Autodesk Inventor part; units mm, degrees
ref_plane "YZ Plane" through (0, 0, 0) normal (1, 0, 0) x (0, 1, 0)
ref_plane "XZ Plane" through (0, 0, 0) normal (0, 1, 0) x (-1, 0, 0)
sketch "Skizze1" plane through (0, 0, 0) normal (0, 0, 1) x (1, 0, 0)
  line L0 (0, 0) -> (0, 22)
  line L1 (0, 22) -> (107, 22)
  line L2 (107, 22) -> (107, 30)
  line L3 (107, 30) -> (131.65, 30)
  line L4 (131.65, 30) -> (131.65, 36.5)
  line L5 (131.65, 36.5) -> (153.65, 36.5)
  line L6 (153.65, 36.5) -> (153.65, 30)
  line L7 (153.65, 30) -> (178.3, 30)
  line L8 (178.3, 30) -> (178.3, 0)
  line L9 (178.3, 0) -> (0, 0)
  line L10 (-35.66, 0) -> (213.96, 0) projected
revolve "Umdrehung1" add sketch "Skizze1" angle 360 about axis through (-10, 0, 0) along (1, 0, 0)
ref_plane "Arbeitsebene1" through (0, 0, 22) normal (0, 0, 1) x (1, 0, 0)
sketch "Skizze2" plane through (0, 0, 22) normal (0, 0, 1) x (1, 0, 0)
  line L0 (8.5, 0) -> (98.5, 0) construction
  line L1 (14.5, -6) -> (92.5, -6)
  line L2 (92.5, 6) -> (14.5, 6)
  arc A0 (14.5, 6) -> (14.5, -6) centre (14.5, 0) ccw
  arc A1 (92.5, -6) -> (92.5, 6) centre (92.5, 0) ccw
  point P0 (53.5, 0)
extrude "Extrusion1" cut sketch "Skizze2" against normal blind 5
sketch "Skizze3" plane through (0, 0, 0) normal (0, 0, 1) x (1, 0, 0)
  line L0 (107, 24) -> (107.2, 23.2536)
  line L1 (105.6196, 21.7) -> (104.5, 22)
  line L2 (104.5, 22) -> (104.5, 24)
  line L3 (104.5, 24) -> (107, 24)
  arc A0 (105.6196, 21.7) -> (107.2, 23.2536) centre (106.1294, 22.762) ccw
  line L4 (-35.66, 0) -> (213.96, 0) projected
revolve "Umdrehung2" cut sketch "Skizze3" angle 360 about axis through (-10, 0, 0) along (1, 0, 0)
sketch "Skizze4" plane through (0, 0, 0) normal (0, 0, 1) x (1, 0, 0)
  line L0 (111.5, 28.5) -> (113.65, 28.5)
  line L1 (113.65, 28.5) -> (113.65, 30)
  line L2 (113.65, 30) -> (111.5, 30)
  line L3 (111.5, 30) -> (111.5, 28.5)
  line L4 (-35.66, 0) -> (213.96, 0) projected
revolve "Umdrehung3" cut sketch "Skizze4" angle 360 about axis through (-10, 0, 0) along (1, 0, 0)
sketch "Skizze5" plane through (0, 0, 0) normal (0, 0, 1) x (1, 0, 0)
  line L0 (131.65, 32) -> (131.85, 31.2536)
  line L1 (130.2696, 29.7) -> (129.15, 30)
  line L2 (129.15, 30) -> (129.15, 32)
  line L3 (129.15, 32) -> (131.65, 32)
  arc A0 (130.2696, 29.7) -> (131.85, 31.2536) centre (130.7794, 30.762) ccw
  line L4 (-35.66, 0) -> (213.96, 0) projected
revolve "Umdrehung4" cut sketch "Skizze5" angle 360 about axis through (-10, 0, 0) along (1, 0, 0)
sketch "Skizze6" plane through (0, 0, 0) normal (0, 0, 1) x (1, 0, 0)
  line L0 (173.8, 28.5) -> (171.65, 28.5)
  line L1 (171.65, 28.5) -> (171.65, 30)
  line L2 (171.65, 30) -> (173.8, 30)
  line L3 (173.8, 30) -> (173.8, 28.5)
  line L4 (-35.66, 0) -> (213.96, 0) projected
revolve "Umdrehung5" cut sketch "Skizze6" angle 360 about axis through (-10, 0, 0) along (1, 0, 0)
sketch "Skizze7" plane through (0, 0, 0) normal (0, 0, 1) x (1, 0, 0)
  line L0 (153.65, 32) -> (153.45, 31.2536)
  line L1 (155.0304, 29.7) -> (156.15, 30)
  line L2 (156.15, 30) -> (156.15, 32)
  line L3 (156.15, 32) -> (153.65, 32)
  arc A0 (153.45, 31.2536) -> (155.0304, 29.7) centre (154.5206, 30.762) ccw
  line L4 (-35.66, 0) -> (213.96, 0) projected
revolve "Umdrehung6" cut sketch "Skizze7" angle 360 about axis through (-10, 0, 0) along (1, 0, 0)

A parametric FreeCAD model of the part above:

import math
import FreeCAD as App
import Part
import Sketcher

V = App.Vector
Q = App.Units.Quantity

doc = App.newDocument("Part")
body = doc.addObject("PartDesign::Body", "Body")

# Sketch on XY plane
sketch1 = doc.addObject("Sketcher::SketchObject", "Sketch")
body.addObject(sketch1)
sketch1.AttachmentSupport = (doc.XY_Plane, [""])
sketch1.MapMode = "FlatFace"
sketch1.addGeometry([
    Part.LineSegment(V(0, 22, 0), V(0, 0, 0)),  # 0
    Part.LineSegment(V(0, 0, 0), V(178, 0, 0)),  # 1
    Part.LineSegment(V(178, 0, 0), V(178, 30, 0)),  # 2
    Part.LineSegment(V(178, 30, 0), V(154, 30, 0)),  # 3
    Part.LineSegment(V(154, 30, 0), V(154, 36, 0)),  # 4
    Part.LineSegment(V(154, 36, 0), V(132, 36, 0)),  # 5
    Part.LineSegment(V(132, 36, 0), V(132, 30, 0)),  # 6
    Part.LineSegment(V(132, 30, 0), V(107, 30, 0)),  # 7
    Part.LineSegment(V(107, 30, 0), V(107, 22, 0)),  # 8
    Part.LineSegment(V(107, 22, 0), V(0, 22, 0)),  # 9
], False)
sketch1.addConstraint([
    Sketcher.Constraint("Coincident", 0, 2, 1, 1),
    Sketcher.Constraint("Coincident", 1, 2, 2, 1),
    Sketcher.Constraint("Coincident", 2, 2, 3, 1),
    Sketcher.Constraint("Coincident", 3, 2, 4, 1),
    Sketcher.Constraint("Coincident", 4, 2, 5, 1),
    Sketcher.Constraint("Coincident", 5, 2, 6, 1),
    Sketcher.Constraint("Coincident", 6, 2, 7, 1),
    Sketcher.Constraint("Coincident", 7, 2, 8, 1),
    Sketcher.Constraint("Coincident", 8, 2, 9, 1),
    Sketcher.Constraint("Coincident", 9, 2, 0, 1),
    Sketcher.Constraint("Vertical", 0),
    Sketcher.Constraint("Horizontal", 1),
    Sketcher.Constraint("Vertical", 2),
    Sketcher.Constraint("Horizontal", 3),
    Sketcher.Constraint("Vertical", 4),
    Sketcher.Constraint("Horizontal", 5),
    Sketcher.Constraint("Vertical", 6),
    Sketcher.Constraint("Horizontal", 7),
    Sketcher.Constraint("Vertical", 8),
    Sketcher.Constraint("Horizontal", 9),
    Sketcher.Constraint("Coincident", 0, 2, -1, 1),
    Sketcher.Constraint("Horizontal", 3, 2, 6, 2),
    Sketcher.Constraint("Equal", 3, 7),
    Sketcher.Constraint("Equal", 5, 0),
    Sketcher.Constraint("DistanceX", 5, 2, 5, 1, Q("22 mm")),
    Sketcher.Constraint("DistanceX", 9, 2, 9, 1, Q("107 mm")),
    Sketcher.Constraint("DistanceY", 2, 1, 2, 2, Q("30 mm")),
    Sketcher.Constraint("DistanceX", 1, 1, 1, 2, Q("178.3 mm")),
    Sketcher.Constraint("DistanceY", 4, 1, 4, 2, Q("6.5 mm")),
])
revolution = doc.addObject("PartDesign::Revolution", "Revolution")
body.addObject(revolution)
revolution.Profile = sketch1
revolution.ReferenceAxis = (sketch1, ["H_Axis"])
revolution.Angle = 360

# Sketch on XY plane
sketch2 = doc.addObject("Sketcher::SketchObject", "Sketch001")
body.addObject(sketch2)
sketch2.AttachmentSupport = (doc.XY_Plane, [""])
sketch2.MapMode = "FlatFace"
sketch2.AttachmentOffset = App.Placement(V(0, 0, 22), App.Rotation())
sketch2.addGeometry([
    Part.ArcOfCircle(Part.Circle(V(14, 0, 0), V(0, 0, 1), 6), math.radians(90), math.radians(270)),
    Part.LineSegment(V(14, -6, 0), V(92, -6, 0)),
    Part.ArcOfCircle(Part.Circle(V(92, 0, 0), V(0, 0, 1), 6), math.radians(-90), math.radians(90)),
    Part.LineSegment(V(92, 6, 0), V(14, 6, 0)),
], False)
sketch2.addConstraint([
    Sketcher.Constraint("Tangent", 0, 2, 1, 1),
    Sketcher.Constraint("Tangent", 1, 2, 2, 1),
    Sketcher.Constraint("Tangent", 2, 2, 3, 1),
    Sketcher.Constraint("Tangent", 3, 2, 0, 1),
    Sketcher.Constraint("Horizontal", 1),
    Sketcher.Constraint("Horizontal", 3),
    Sketcher.Constraint("PointOnObject", 0, 3, -1),
    Sketcher.Constraint("Radius", 0, Q("6 mm")),
    Sketcher.Constraint("DistanceX", 1, 1, 1, 2, Q("78 mm")),
    Sketcher.Constraint("DistanceX", -1, 1, 0, 3, Q("14.5 mm")),
])
pocket1 = doc.addObject("PartDesign::Pocket", "Pocket")
body.addObject(pocket1)
pocket1.Profile = sketch2
pocket1.Length = 5

# Sketch on XY plane
sketch3 = doc.addObject("Sketcher::SketchObject", "Sketch002")
body.addObject(sketch3)
sketch3.AttachmentSupport = (doc.XY_Plane, [""])
sketch3.MapMode = "FlatFace"
sketch3.addGeometry([
    Part.LineSegment(V(107.2, 23.3, 0), V(107, 24, 0)),  # 0
    Part.LineSegment(V(107, 24, 0), V(104.5, 24, 0)),  # 1
    Part.LineSegment(V(104.5, 24, 0), V(104.5, 22, 0)),  # 2
    Part.LineSegment(V(104.5, 22, 0), V(105.6, 21.7, 0)),  # 3
    Part.ArcOfCircle(Part.Circle(V(106.1, 22.8, 0), V(0, 0, 1), 1.2), math.radians(-116), math.radians(25)),  # 4
], False)
sketch3.addConstraint([
    Sketcher.Constraint("Coincident", 0, 2, 1, 1),
    Sketcher.Constraint("Coincident", 1, 2, 2, 1),
    Sketcher.Constraint("Coincident", 2, 2, 3, 1),
    Sketcher.Constraint("Coincident", 3, 2, 4, 1),
    Sketcher.Constraint("Coincident", 4, 2, 0, 1),
    Sketcher.Constraint("Horizontal", 1),
    Sketcher.Constraint("Vertical", 2),
    Sketcher.Constraint("DistanceY", 2, 2, 2, 1, Q("2 mm")),
    Sketcher.Constraint("Angle", 0, Q("105.0002 deg")),
    Sketcher.Constraint("Angle", 3, Q("-15.0002 deg")),
    Sketcher.Constraint("DistanceX", 1, 2, 1, 1, Q("2.5 mm")),
    Sketcher.Constraint("DistanceX", -1, 1, 0, 2, Q("107 mm")),
    Sketcher.Constraint("DistanceY", -1, 1, 0, 2, Q("24 mm")),
    Sketcher.Constraint("Radius", 4, Q("1.178 mm")),
    Sketcher.Constraint("DistanceY", -1, 1, 3, 2, Q("21.7 mm")),
    Sketcher.Constraint("DistanceX", -1, 1, 4, 2, Q("107.2 mm")),
])
groove = doc.addObject("PartDesign::Groove", "Groove")
body.addObject(groove)
groove.Profile = sketch3
groove.ReferenceAxis = (sketch3, ["H_Axis"])
groove.Angle = 360

# Sketch on XY plane
sketch4 = doc.addObject("Sketcher::SketchObject", "Sketch003")
body.addObject(sketch4)
sketch4.AttachmentSupport = (doc.XY_Plane, [""])
sketch4.MapMode = "FlatFace"
sketch4.addGeometry([
    Part.LineSegment(V(111.5, 30, 0), V(111.5, 28.5, 0)),
    Part.LineSegment(V(111.5, 28.5, 0), V(113.7, 28.5, 0)),
    Part.LineSegment(V(113.7, 28.5, 0), V(113.7, 30, 0)),
    Part.LineSegment(V(113.7, 30, 0), V(111.5, 30, 0)),
], False)
sketch4.addConstraint([
    Sketcher.Constraint("Coincident", 0, 2, 1, 1),
    Sketcher.Constraint("Coincident", 1, 2, 2, 1),
    Sketcher.Constraint("Coincident", 2, 2, 3, 1),
    Sketcher.Constraint("Coincident", 3, 2, 0, 1),
    Sketcher.Constraint("Vertical", 0),
    Sketcher.Constraint("Horizontal", 1),
    Sketcher.Constraint("Vertical", 2),
    Sketcher.Constraint("Horizontal", 3),
    Sketcher.Constraint("DistanceY", 0, 2, 0, 1, Q("1.5 mm")),
    Sketcher.Constraint("DistanceY", -1, 1, 2, 2, Q("30 mm")),
    Sketcher.Constraint("DistanceX", 1, 1, 1, 2, Q("2.15 mm")),
    Sketcher.Constraint("DistanceX", -1, 1, 0, 2, Q("111.5 mm")),
])
groove2 = doc.addObject("PartDesign::Groove", "Groove001")
body.addObject(groove2)
groove2.Profile = sketch4
groove2.ReferenceAxis = (sketch4, ["H_Axis"])
groove2.Angle = 360

# Sketch on XY plane
sketch5 = doc.addObject("Sketcher::SketchObject", "Sketch004")
body.addObject(sketch5)
sketch5.AttachmentSupport = (doc.XY_Plane, [""])
sketch5.MapMode = "FlatFace"
sketch5.addGeometry([
    Part.LineSegment(V(131.8, 31.3, 0), V(131.7, 32, 0)),  # 0
    Part.LineSegment(V(131.7, 32, 0), V(129.2, 32, 0)),  # 1
    Part.LineSegment(V(129.2, 32, 0), V(129.2, 30, 0)),  # 2
    Part.LineSegment(V(129.2, 30, 0), V(130.3, 29.7, 0)),  # 3
    Part.ArcOfCircle(Part.Circle(V(130.8, 30.8, 0), V(0, 0, 1), 1.2), math.radians(-116), math.radians(25)),  # 4
], False)
sketch5.addConstraint([
    Sketcher.Constraint("Coincident", 0, 2, 1, 1),
    Sketcher.Constraint("Coincident", 1, 2, 2, 1),
    Sketcher.Constraint("Coincident", 2, 2, 3, 1),
    Sketcher.Constraint("Coincident", 3, 2, 4, 1),
    Sketcher.Constraint("Coincident", 4, 2, 0, 1),
    Sketcher.Constraint("Horizontal", 1),
    Sketcher.Constraint("Vertical", 2),
    Sketcher.Constraint("DistanceY", 2, 2, 2, 1, Q("2 mm")),
    Sketcher.Constraint("Angle", 0, Q("105.0002 deg")),
    Sketcher.Constraint("Angle", 3, Q("-15.0002 deg")),
    Sketcher.Constraint("DistanceX", 1, 2, 1, 1, Q("2.5 mm")),
    Sketcher.Constraint("DistanceY", -1, 1, 0, 2, Q("32 mm")),
    Sketcher.Constraint("Radius", 4, Q("1.178 mm")),
    Sketcher.Constraint("DistanceY", -1, 1, 3, 2, Q("29.7 mm")),
    Sketcher.Constraint("DistanceX", 0, 2, 4, 2, Q("0.2 mm")),
    Sketcher.Constraint("DistanceX", -1, 1, 0, 2, Q("131.65 mm")),
])
groove3 = doc.addObject("PartDesign::Groove", "Groove002")
body.addObject(groove3)
groove3.Profile = sketch5
groove3.ReferenceAxis = (sketch5, ["H_Axis"])
groove3.Angle = 360

# Sketch on XY plane
sketch6 = doc.addObject("Sketcher::SketchObject", "Sketch005")
body.addObject(sketch6)
sketch6.AttachmentSupport = (doc.XY_Plane, [""])
sketch6.MapMode = "FlatFace"
sketch6.addGeometry([
    Part.LineSegment(V(171.7, 28.5, 0), V(173.8, 28.5, 0)),
    Part.LineSegment(V(173.8, 28.5, 0), V(173.8, 30, 0)),
    Part.LineSegment(V(173.8, 30, 0), V(171.7, 30, 0)),
    Part.LineSegment(V(171.7, 30, 0), V(171.7, 28.5, 0)),
], False)
sketch6.addConstraint([
    Sketcher.Constraint("Coincident", 0, 2, 1, 1),
    Sketcher.Constraint("Coincident", 1, 2, 2, 1),
    Sketcher.Constraint("Coincident", 2, 2, 3, 1),
    Sketcher.Constraint("Coincident", 3, 2, 0, 1),
    Sketcher.Constraint("Horizontal", 0),
    Sketcher.Constraint("Vertical", 1),
    Sketcher.Constraint("Horizontal", 2),
    Sketcher.Constraint("Vertical", 3),
    Sketcher.Constraint("DistanceY", 1, 1, 1, 2, Q("1.5 mm")),
    Sketcher.Constraint("DistanceY", -1, 1, 1, 2, Q("30 mm")),
    Sketcher.Constraint("DistanceX", 0, 1, 0, 2, Q("2.15 mm")),
    Sketcher.Constraint("DistanceX", -1, 1, 0, 2, Q("173.8 mm")),
])
groove4 = doc.addObject("PartDesign::Groove", "Groove003")
body.addObject(groove4)
groove4.Profile = sketch6
groove4.ReferenceAxis = (sketch6, ["H_Axis"])
groove4.Angle = 360

# Sketch on XY plane
sketch7 = doc.addObject("Sketcher::SketchObject", "Sketch006")
body.addObject(sketch7)
sketch7.AttachmentSupport = (doc.XY_Plane, [""])
sketch7.MapMode = "FlatFace"
sketch7.addGeometry([
    Part.LineSegment(V(156.2, 32, 0), V(153.7, 32, 0)),  # 0
    Part.LineSegment(V(153.7, 32, 0), V(153.4, 31.3, 0)),  # 1
    Part.ArcOfCircle(Part.Circle(V(154.5, 30.8, 0), V(0, 0, 1), 1.2), math.radians(155), math.radians(296)),  # 2
    Part.LineSegment(V(155, 29.7, 0), V(156.2, 30, 0)),  # 3
    Part.LineSegment(V(156.2, 30, 0), V(156.2, 32, 0)),  # 4
], False)
sketch7.addConstraint([
    Sketcher.Constraint("Coincident", 0, 2, 1, 1),
    Sketcher.Constraint("Coincident", 1, 2, 2, 1),
    Sketcher.Constraint("Coincident", 2, 2, 3, 1),
    Sketcher.Constraint("Coincident", 3, 2, 4, 1),
    Sketcher.Constraint("Coincident", 4, 2, 0, 1),
    Sketcher.Constraint("Horizontal", 0),
    Sketcher.Constraint("Vertical", 4),
    Sketcher.Constraint("DistanceY", 4, 1, 4, 2, Q("2 mm")),
    Sketcher.Constraint("Angle", 1, Q("-105.0002 deg")),
    Sketcher.Constraint("Angle", 3, Q("15.0002 deg")),
    Sketcher.Constraint("DistanceX", 0, 2, 0, 1, Q("2.5 mm")),
    Sketcher.Constraint("DistanceY", -1, 1, 0, 2, Q("32 mm")),
    Sketcher.Constraint("Radius", 2, Q("1.178 mm")),
    Sketcher.Constraint("DistanceY", -1, 1, 2, 2, Q("29.7 mm")),
    Sketcher.Constraint("DistanceX", 1, 2, 0, 2, Q("0.2 mm")),
    Sketcher.Constraint("DistanceX", -1, 1, 0, 2, Q("153.65 mm")),
])
groove5 = doc.addObject("PartDesign::Groove", "Groove004")
body.addObject(groove5)
groove5.Profile = sketch7
groove5.ReferenceAxis = (sketch7, ["H_Axis"])
groove5.Angle = 360

doc.recompute()
